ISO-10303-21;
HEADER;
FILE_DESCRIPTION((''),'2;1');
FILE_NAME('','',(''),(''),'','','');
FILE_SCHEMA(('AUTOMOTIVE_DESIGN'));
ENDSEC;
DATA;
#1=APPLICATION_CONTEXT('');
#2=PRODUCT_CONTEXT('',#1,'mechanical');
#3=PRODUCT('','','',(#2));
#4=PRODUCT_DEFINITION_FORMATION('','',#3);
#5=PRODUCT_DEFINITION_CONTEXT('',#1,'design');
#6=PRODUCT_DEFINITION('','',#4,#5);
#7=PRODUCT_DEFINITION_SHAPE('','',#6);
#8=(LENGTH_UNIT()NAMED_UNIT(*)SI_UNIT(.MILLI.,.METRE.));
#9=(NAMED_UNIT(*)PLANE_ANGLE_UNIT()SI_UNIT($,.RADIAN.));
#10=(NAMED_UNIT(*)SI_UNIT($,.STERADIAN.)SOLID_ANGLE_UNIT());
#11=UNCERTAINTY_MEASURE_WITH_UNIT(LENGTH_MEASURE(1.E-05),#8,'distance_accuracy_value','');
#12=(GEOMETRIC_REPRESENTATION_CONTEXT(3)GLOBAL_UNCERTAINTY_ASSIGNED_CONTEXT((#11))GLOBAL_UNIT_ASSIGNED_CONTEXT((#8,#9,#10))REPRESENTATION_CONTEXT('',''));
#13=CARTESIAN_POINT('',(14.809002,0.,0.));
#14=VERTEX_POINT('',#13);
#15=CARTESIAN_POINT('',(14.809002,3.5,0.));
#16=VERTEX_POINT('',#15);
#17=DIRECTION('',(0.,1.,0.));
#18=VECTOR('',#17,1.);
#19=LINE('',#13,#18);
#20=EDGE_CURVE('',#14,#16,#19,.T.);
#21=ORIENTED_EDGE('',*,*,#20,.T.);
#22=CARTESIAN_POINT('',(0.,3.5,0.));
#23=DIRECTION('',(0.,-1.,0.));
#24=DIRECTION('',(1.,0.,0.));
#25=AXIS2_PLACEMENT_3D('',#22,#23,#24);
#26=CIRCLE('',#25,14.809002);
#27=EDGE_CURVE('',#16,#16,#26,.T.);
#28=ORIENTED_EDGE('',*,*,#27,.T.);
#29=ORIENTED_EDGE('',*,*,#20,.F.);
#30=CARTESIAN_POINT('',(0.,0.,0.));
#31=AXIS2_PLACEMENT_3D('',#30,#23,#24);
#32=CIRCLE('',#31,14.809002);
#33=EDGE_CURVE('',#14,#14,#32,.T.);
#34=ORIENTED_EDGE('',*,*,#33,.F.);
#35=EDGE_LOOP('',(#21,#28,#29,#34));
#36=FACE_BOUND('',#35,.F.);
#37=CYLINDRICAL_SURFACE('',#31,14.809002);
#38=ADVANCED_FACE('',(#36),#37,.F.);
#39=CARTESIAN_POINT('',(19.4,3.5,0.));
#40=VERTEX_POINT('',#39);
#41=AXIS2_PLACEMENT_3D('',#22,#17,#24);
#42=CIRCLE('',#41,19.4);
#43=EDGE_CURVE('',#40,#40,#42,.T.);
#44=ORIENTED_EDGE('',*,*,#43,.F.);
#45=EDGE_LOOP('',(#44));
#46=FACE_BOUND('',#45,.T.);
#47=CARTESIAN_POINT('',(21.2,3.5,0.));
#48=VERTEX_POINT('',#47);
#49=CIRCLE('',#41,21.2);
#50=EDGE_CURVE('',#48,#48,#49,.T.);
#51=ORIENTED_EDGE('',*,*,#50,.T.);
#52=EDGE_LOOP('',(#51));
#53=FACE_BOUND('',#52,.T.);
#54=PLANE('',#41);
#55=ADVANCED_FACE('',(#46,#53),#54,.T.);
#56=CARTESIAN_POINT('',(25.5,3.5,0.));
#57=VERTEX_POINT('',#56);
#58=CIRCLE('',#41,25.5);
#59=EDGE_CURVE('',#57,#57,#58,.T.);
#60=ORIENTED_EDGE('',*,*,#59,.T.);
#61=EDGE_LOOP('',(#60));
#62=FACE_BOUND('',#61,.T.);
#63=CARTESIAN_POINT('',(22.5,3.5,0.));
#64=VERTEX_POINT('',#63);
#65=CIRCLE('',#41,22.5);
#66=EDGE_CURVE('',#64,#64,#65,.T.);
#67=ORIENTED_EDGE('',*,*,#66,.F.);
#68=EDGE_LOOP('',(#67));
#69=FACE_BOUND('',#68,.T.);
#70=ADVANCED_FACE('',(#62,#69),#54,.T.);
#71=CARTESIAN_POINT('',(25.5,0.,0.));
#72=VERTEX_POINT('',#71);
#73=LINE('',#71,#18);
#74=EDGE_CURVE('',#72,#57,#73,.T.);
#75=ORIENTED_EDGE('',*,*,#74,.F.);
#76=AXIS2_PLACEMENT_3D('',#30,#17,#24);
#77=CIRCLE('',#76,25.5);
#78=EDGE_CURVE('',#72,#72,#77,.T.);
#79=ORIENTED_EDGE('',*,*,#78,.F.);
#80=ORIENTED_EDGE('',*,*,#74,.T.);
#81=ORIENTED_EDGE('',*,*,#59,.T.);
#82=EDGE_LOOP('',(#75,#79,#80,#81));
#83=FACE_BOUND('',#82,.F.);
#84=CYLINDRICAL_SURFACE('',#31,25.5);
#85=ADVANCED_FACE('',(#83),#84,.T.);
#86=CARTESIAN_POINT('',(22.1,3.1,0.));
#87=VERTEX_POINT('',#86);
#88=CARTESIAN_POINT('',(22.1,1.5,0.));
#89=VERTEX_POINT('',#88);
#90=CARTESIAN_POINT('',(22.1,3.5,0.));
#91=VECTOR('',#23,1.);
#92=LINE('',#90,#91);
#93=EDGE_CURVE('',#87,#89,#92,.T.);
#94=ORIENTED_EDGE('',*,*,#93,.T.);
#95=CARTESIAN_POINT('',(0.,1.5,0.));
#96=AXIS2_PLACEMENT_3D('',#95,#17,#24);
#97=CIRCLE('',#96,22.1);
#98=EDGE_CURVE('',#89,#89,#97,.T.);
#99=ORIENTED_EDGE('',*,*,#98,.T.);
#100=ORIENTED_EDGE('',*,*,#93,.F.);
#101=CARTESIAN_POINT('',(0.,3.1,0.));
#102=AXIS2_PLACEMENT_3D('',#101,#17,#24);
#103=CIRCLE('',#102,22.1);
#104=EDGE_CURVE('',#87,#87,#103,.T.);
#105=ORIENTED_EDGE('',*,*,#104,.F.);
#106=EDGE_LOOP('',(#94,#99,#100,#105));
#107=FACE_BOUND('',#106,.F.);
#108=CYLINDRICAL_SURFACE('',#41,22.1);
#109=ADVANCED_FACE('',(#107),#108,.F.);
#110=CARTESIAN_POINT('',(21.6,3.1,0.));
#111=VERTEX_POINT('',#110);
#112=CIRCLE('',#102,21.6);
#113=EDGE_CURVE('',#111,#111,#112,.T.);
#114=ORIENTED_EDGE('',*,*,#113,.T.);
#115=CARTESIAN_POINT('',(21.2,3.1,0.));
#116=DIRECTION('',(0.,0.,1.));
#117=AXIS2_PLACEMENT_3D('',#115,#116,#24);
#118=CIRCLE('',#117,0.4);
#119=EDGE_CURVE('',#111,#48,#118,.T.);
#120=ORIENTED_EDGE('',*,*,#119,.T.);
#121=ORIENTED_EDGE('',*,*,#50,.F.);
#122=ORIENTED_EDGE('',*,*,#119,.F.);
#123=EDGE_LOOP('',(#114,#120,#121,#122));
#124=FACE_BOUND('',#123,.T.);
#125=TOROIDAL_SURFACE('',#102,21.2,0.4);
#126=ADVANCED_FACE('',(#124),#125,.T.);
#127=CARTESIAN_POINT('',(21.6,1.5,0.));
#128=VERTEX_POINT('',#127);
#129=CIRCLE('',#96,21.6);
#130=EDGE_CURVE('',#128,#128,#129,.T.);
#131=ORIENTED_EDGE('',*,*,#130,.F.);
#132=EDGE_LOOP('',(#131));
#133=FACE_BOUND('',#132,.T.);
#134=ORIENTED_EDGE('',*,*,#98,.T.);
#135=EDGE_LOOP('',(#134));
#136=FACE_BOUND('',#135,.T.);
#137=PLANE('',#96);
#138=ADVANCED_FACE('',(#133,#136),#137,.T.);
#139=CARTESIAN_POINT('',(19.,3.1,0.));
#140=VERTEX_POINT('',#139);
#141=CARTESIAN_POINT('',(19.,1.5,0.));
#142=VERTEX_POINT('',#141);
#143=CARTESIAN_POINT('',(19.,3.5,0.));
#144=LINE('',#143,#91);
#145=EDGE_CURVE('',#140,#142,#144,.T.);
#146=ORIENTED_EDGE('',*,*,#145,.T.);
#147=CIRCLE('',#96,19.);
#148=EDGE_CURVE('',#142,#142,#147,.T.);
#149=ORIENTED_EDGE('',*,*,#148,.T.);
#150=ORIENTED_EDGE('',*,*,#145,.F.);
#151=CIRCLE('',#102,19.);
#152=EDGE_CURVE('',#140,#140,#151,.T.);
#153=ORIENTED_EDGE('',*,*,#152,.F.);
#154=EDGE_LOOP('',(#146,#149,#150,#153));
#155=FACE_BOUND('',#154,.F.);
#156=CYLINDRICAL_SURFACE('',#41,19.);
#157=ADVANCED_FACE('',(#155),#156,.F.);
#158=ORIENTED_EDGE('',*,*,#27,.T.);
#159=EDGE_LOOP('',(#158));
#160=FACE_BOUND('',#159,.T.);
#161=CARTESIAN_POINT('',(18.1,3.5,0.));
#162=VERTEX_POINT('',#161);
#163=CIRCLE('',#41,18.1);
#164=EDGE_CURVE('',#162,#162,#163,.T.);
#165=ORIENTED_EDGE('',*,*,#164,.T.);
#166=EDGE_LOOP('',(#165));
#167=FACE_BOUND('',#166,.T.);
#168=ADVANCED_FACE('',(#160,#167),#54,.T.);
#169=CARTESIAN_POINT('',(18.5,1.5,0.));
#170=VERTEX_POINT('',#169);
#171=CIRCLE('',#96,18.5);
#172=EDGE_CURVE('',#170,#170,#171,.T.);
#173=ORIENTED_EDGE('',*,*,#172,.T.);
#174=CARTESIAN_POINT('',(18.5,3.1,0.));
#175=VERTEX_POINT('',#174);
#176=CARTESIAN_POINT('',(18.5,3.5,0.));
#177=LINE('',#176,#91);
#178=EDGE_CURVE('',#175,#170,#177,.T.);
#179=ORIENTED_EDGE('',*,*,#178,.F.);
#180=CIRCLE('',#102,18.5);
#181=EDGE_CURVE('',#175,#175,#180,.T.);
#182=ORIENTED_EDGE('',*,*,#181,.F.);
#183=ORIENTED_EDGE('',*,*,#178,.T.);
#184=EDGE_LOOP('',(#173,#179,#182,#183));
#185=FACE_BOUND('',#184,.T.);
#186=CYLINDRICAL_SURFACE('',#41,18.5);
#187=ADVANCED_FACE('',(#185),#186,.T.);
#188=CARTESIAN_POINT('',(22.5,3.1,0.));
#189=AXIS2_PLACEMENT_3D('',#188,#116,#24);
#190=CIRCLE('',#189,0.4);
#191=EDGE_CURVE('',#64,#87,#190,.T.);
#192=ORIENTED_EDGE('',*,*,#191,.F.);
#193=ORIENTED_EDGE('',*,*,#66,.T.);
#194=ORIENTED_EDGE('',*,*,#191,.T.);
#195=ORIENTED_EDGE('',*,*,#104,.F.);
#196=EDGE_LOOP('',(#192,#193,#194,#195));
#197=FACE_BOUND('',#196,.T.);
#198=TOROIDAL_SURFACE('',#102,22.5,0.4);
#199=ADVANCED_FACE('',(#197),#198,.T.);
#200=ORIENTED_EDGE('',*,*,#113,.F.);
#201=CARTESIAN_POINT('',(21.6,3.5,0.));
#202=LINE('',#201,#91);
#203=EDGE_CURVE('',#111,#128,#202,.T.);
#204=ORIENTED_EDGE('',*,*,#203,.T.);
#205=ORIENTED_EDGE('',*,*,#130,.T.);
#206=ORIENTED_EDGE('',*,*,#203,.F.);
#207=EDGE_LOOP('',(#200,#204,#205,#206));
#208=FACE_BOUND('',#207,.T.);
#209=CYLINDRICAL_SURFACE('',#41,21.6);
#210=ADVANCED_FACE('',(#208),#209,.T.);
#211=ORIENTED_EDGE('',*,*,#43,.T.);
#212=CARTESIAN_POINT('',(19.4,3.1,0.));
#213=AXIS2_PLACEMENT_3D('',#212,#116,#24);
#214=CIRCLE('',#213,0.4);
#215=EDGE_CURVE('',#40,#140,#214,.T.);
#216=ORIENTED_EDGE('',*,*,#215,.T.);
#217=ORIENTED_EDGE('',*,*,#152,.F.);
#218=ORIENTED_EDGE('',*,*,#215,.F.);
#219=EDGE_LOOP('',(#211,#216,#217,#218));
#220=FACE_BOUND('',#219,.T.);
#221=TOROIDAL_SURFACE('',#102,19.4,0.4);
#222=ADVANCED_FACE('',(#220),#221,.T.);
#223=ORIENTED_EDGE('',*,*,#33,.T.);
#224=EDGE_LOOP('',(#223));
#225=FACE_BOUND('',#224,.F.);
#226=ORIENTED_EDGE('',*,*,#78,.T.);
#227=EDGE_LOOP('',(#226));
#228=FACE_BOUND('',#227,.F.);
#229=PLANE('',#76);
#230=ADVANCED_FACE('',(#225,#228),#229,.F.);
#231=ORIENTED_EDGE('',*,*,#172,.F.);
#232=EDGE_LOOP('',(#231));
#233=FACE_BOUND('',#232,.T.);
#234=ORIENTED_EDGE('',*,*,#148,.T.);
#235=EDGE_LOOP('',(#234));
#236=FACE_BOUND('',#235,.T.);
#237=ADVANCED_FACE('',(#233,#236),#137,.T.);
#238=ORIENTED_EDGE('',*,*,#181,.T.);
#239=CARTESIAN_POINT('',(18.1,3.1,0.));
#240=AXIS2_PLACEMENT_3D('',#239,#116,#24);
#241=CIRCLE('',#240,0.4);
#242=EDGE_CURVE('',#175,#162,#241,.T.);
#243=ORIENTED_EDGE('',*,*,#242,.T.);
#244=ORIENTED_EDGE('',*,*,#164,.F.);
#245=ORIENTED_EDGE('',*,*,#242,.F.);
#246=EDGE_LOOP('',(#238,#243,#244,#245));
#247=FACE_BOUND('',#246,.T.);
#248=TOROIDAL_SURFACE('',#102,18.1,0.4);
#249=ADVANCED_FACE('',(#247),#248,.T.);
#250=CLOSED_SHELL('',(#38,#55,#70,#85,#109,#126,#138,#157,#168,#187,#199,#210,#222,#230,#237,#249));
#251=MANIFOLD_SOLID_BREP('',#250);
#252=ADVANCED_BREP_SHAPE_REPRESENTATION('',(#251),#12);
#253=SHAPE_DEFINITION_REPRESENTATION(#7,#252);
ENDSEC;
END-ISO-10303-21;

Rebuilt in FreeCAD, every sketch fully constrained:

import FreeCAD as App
import Part
import Sketcher
Q = App.Units.Quantity


def edges_at(feature, points):
    """Names of the edges that pass closest to the given points."""
    edges = feature.Shape.Edges
    near = lambda p: min(range(len(edges)), key=lambda i: edges[i].distToShape(Part.Vertex(*p))[0])
    return sorted({f"Edge{near(p) + 1}" for p in points})

doc = App.newDocument("Part")
body = doc.addObject("PartDesign::Body", "Body")

sketch1 = body.newObject("Sketcher::SketchObject", "Sketch")
sketch1.AttachmentSupport = (doc.getObject("XZ_Plane"), [""])
sketch1.MapMode = "FlatFace"
sketch1.addGeometry(Part.Circle(App.Vector(0, 0, 0), App.Vector(0, 0, 1), 26), False)
sketch1.addConstraint(Sketcher.Constraint("Coincident", 0, 3, -1, 1))
sketch1.addConstraint(Sketcher.Constraint("Diameter", 0, Q("51 mm")))
pad1 = body.newObject("PartDesign::Pad", "Pad")
pad1.Profile = sketch1
pad1.Length = 3.5
pad1.Reversed = True

sketch2 = body.newObject("Sketcher::SketchObject", "Sketch001")
sketch2.AttachmentSupport = (doc.getObject("XZ_Plane"), [""])
sketch2.MapMode = "FlatFace"
sketch2.AttachmentOffset = App.Placement(App.Vector(0, 0, -3.5), App.Rotation())
sketch2.addGeometry(Part.Circle(App.Vector(0, 0, 0), App.Vector(0, 0, 1), 19), False)
sketch2.addGeometry(Part.Circle(App.Vector(0, 0, 0), App.Vector(0, 0, 1), 18), False)
sketch2.addConstraint(Sketcher.Constraint("Coincident", 0, 3, -1, 1))
sketch2.addConstraint(Sketcher.Constraint("Coincident", 1, 3, -1, 1))
sketch2.addConstraint(Sketcher.Constraint("Diameter", 0, Q("38 mm")))
sketch2.addConstraint(Sketcher.Constraint("Diameter", 1, Q("37 mm")))
pocket1 = body.newObject("PartDesign::Pocket", "Pocket")
pocket1.Profile = sketch2
pocket1.Length = 2
pocket1.Reversed = True

sketch3 = body.newObject("Sketcher::SketchObject", "Sketch002")
sketch3.AttachmentSupport = (doc.getObject("XZ_Plane"), [""])
sketch3.MapMode = "FlatFace"
sketch3.AttachmentOffset = App.Placement(App.Vector(0, 0, -3.5), App.Rotation())
sketch3.addGeometry(Part.Circle(App.Vector(0, 0, 0), App.Vector(0, 0, 1), 22), False)
sketch3.addGeometry(Part.Circle(App.Vector(0, 0, 0), App.Vector(0, 0, 1), 22), False)
sketch3.addConstraint(Sketcher.Constraint("Coincident", 0, 3, -1, 1))
sketch3.addConstraint(Sketcher.Constraint("Coincident", 1, 3, -1, 1))
sketch3.addConstraint(Sketcher.Constraint("Diameter", 0, Q("44.2 mm")))
sketch3.addConstraint(Sketcher.Constraint("Diameter", 1, Q("43.2 mm")))
pocket2 = body.newObject("PartDesign::Pocket", "Pocket001")
pocket2.Profile = sketch3
pocket2.Length = 2
pocket2.Reversed = True
doc.recompute()

fillet = body.newObject("PartDesign::Fillet", "Fillet")
fillet.Base = (pocket2, edges_at(pocket2, [
    (-22.1, 3.5, 0),
    (-21.6, 3.5, 0),
    (-19, 3.5, 0),
    (-18.5, 3.5, 0),
]))
fillet.Radius = 0.4

sketch4 = body.newObject("Sketcher::SketchObject", "Sketch003")
sketch4.AttachmentSupport = (doc.getObject("XZ_Plane"), [""])
sketch4.MapMode = "FlatFace"
sketch4.addGeometry(Part.Circle(App.Vector(0, 0, 0), App.Vector(0, 0, 1), 15), False)
sketch4.addConstraint(Sketcher.Constraint("Coincident", 0, 3, -1, 1))
sketch4.addConstraint(Sketcher.Constraint("Diameter", 0, Q("29.618004 mm")))
pocket3 = body.newObject("PartDesign::Pocket", "Pocket002")
pocket3.Profile = sketch4
pocket3.Length = 10

doc.recompute()
